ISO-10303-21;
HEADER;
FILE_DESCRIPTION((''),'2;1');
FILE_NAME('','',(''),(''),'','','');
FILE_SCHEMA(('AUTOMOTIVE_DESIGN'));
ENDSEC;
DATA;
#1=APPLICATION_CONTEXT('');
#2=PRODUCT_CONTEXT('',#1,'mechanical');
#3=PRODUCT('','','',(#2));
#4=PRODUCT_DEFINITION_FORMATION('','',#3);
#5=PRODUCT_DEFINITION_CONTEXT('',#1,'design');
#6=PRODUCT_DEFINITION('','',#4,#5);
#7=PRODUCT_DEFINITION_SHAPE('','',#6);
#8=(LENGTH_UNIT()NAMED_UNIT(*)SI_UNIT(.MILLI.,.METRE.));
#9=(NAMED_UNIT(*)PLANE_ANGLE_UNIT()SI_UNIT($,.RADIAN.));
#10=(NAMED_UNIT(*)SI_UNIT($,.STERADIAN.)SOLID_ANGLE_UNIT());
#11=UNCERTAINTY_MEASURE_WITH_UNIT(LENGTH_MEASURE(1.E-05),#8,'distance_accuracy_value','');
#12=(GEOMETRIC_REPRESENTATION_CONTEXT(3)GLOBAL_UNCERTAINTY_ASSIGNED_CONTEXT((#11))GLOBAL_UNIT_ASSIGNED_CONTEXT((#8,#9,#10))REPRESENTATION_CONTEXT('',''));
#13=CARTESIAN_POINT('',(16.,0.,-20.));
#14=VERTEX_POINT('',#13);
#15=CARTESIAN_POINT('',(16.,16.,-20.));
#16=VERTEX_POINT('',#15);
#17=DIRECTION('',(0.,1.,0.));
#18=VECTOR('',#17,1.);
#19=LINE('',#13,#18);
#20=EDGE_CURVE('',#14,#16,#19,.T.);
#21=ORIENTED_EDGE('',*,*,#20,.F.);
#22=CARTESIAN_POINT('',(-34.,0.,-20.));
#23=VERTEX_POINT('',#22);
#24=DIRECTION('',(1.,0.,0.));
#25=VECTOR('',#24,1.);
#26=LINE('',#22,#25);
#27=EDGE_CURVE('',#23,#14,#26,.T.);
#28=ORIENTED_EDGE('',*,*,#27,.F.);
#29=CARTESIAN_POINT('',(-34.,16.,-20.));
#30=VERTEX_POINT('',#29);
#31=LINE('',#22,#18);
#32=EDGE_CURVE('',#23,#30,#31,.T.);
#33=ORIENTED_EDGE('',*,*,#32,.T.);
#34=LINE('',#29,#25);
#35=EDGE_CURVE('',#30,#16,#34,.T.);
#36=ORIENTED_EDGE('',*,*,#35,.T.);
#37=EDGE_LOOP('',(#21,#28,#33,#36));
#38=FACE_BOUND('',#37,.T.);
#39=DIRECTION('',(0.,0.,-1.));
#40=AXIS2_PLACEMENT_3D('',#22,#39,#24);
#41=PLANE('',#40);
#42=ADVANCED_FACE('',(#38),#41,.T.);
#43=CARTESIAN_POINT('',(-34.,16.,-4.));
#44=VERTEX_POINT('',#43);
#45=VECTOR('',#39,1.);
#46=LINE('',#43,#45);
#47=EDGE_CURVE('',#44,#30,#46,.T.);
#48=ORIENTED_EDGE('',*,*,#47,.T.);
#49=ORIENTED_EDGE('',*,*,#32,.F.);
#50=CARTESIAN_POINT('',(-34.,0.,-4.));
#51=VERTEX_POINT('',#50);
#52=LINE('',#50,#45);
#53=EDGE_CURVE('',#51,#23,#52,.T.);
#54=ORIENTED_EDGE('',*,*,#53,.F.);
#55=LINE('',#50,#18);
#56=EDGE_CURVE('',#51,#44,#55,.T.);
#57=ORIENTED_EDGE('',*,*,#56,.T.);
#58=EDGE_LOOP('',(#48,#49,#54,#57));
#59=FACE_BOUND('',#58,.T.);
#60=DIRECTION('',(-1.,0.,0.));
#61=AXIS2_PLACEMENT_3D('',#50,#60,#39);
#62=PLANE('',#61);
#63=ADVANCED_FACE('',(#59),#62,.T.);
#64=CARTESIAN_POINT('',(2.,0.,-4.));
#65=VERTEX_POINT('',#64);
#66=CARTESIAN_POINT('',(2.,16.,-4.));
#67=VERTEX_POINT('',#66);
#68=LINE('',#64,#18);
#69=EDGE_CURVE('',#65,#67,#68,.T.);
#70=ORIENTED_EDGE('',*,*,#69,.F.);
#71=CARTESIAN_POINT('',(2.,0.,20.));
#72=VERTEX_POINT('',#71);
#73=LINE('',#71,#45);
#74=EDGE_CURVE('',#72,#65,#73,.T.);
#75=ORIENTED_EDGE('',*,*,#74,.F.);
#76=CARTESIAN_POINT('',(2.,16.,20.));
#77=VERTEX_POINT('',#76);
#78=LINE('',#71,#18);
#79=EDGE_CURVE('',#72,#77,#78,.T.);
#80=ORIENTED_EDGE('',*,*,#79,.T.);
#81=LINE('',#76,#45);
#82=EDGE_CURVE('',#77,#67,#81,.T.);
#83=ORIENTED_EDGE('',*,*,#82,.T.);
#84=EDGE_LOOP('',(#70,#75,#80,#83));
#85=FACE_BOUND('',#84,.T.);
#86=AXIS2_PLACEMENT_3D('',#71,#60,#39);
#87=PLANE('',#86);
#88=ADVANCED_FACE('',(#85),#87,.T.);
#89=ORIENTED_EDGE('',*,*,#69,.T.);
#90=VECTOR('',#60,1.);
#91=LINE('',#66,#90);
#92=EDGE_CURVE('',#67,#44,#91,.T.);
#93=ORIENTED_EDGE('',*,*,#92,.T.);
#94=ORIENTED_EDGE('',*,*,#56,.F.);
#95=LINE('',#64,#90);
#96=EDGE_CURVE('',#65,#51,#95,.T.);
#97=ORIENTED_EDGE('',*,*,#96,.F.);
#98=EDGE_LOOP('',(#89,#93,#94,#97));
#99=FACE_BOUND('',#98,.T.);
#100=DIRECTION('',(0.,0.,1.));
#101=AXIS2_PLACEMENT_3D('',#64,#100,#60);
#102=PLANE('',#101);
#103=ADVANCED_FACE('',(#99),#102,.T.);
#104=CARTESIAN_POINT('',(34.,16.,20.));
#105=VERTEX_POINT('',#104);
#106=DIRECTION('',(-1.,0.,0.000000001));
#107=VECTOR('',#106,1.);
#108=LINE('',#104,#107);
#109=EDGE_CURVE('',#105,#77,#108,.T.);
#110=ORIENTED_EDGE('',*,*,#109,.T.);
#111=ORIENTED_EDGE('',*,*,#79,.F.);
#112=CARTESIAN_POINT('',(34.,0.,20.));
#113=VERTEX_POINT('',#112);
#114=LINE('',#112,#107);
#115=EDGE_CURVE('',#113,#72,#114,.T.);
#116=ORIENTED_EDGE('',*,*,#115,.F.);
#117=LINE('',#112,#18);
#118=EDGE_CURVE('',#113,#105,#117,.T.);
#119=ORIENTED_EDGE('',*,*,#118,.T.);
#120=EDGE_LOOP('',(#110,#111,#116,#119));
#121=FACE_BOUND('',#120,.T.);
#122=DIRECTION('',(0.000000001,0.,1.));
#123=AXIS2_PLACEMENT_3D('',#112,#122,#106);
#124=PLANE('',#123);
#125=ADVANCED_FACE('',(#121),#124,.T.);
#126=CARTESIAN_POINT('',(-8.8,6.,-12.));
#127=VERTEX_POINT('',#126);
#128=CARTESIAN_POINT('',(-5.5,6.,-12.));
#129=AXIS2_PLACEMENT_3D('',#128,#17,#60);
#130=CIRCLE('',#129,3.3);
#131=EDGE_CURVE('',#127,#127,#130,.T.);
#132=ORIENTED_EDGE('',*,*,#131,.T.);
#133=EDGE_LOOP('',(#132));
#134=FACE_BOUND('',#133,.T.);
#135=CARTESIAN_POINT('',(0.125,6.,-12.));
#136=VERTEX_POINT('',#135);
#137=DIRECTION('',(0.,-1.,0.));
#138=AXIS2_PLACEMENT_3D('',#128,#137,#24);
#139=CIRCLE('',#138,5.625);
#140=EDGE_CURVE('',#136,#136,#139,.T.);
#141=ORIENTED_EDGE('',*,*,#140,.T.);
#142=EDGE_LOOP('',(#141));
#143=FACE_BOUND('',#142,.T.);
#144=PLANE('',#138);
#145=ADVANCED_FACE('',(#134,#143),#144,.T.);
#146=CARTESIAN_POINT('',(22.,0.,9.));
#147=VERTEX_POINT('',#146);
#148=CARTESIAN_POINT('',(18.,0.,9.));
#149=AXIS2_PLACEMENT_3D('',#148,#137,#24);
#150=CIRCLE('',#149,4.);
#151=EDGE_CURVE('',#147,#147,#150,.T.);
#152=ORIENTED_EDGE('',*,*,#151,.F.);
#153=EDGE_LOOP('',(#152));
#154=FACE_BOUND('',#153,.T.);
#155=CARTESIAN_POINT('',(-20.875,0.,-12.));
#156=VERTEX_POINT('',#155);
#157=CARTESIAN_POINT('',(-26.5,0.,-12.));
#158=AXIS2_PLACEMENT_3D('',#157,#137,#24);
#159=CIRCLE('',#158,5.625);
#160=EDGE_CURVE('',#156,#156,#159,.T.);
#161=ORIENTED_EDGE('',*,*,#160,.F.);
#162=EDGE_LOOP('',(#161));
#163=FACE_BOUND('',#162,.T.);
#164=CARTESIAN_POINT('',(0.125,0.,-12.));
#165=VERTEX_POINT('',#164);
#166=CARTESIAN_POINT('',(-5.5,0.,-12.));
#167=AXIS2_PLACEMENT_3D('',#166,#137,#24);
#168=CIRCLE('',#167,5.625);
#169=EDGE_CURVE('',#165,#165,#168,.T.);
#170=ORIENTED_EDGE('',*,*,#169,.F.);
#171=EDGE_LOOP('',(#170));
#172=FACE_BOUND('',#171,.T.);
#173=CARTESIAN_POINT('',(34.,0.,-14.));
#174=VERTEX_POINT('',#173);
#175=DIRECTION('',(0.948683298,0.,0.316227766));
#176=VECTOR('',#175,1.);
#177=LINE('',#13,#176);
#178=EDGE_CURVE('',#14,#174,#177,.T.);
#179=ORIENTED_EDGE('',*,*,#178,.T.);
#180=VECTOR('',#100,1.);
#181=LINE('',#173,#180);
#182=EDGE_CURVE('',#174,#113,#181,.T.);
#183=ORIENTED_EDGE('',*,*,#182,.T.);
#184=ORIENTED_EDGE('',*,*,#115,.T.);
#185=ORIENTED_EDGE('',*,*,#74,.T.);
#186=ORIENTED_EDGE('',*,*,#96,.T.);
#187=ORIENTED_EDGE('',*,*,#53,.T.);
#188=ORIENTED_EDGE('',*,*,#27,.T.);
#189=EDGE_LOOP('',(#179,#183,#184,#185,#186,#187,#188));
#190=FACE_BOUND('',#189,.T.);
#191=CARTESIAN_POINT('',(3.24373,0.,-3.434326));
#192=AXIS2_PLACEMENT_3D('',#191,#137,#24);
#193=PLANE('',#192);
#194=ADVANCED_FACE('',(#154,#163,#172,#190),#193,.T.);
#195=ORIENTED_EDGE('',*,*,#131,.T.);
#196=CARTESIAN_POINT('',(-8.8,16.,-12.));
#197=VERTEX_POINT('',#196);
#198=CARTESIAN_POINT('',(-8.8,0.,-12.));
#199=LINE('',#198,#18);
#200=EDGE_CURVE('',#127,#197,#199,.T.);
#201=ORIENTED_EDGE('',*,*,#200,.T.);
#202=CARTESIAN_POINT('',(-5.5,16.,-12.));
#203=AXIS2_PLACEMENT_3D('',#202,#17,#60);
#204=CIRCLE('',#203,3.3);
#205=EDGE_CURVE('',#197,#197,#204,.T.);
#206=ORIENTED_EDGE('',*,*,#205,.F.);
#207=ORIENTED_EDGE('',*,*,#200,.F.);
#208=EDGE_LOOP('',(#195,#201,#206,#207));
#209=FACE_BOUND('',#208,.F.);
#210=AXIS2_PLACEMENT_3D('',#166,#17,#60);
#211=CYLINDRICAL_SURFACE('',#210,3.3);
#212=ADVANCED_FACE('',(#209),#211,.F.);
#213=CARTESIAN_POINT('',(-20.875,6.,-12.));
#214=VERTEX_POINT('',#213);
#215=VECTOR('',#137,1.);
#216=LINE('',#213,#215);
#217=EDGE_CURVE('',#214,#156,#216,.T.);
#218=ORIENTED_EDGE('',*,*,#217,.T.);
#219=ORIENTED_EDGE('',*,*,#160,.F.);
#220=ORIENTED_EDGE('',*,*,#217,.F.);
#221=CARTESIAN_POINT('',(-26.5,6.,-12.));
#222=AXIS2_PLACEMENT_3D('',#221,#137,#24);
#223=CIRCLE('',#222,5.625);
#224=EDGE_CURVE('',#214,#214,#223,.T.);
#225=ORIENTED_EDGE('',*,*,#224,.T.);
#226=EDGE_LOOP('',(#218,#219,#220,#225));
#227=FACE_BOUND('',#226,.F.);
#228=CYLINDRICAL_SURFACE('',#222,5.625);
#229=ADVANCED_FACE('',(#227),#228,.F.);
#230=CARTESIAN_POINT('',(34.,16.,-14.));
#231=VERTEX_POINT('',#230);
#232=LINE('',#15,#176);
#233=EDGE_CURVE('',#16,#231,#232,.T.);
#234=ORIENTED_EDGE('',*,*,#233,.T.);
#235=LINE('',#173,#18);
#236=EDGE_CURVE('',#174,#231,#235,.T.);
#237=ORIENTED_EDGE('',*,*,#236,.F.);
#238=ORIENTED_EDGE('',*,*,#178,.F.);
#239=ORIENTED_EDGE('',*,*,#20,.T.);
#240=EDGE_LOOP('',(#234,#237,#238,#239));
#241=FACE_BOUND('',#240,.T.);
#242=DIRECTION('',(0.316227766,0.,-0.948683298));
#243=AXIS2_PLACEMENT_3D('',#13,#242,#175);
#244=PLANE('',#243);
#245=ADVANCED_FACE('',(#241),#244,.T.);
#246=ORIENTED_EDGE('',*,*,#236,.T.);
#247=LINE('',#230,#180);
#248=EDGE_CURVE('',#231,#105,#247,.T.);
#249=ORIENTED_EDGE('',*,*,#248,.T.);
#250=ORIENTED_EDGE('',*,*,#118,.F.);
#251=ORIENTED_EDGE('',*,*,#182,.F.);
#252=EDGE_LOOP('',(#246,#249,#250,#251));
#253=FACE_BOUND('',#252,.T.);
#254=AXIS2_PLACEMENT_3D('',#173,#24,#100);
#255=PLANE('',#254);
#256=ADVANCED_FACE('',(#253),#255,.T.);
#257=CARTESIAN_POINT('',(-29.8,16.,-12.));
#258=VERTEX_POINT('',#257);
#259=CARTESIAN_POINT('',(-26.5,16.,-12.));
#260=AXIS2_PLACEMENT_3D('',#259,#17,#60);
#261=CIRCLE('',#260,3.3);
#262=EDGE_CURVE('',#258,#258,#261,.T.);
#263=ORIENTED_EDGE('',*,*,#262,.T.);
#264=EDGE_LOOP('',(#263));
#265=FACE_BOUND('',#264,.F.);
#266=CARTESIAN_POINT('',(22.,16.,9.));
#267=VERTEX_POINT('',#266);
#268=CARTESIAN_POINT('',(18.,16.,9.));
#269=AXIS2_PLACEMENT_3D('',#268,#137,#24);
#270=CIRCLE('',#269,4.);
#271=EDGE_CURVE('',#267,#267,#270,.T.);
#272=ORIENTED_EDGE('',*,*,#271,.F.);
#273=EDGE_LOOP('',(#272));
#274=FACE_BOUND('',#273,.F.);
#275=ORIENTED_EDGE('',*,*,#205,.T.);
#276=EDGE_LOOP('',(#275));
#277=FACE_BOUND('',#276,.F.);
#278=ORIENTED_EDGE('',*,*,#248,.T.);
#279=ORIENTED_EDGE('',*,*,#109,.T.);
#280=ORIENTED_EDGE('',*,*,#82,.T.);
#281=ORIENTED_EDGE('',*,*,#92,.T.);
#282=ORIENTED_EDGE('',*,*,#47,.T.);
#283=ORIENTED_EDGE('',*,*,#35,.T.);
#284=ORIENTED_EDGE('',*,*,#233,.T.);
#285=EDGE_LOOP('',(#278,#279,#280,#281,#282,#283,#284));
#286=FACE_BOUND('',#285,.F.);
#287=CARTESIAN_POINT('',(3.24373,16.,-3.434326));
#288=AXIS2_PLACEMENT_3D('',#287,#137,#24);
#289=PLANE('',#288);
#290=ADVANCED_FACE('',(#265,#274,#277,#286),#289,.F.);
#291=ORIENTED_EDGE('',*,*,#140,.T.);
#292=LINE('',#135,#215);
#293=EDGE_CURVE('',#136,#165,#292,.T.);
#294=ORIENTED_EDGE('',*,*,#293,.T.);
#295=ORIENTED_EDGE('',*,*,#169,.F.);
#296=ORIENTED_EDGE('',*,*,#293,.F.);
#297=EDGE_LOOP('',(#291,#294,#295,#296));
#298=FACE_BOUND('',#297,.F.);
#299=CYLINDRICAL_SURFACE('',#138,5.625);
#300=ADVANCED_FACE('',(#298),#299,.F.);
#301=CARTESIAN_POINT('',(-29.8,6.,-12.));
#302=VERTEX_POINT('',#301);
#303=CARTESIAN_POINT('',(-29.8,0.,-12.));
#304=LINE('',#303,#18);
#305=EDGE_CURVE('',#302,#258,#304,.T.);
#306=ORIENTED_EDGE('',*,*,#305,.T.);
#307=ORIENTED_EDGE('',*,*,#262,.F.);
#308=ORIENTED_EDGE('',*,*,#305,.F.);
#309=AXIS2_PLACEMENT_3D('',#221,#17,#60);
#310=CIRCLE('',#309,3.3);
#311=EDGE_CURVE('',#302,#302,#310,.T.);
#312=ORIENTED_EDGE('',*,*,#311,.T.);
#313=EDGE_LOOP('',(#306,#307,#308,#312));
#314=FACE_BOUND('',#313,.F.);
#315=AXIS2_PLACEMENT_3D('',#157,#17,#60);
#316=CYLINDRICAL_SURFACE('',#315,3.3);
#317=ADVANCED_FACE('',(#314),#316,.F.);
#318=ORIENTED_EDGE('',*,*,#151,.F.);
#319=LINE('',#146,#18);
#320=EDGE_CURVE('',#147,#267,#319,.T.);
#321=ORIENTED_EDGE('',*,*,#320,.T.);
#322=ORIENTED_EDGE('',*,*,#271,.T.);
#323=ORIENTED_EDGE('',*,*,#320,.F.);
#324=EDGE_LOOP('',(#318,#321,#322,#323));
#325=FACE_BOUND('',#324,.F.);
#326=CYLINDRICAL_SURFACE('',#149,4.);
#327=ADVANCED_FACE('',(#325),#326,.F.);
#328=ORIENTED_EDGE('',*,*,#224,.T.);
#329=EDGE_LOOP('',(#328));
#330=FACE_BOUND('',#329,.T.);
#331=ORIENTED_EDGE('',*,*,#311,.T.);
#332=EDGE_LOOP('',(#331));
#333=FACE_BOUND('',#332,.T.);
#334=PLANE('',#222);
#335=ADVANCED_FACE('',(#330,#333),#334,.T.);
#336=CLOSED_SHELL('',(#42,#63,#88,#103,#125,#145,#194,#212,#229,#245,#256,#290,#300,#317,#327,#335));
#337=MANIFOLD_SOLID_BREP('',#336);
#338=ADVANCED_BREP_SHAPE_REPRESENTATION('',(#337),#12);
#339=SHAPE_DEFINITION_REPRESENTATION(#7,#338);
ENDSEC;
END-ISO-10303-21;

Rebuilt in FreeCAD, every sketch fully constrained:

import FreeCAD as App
import Part
import Sketcher


def add_polygon(sketch, points):
    """Adds a closed chain of lines whose ends are joined by coincident constraints."""
    first, n = sketch.GeometryCount, len(points)
    for a, b in zip(points, points[1:] + points[:1]):
        sketch.addGeometry(Part.LineSegment(App.Vector(*a, 0), App.Vector(*b, 0)), False)
    for i in range(n):
        sketch.addConstraint(Sketcher.Constraint("Coincident", first + i, 2, first + (i + 1) % n, 1))

doc = App.newDocument("Part")
body = doc.addObject("PartDesign::Body", "Body")

sketch1 = body.newObject("Sketcher::SketchObject", "Sketch")
sketch1.AttachmentSupport = (doc.getObject("XZ_Plane"), [""])
sketch1.MapMode = "FlatFace"
add_polygon(sketch1, [(34, -14), (34, 20), (2, 20), (2, -4), (-34, -4), (-34, -20), (16, -20)])
sketch1.addGeometry(Part.Circle(App.Vector(18, 9, 0), App.Vector(0, 0, 1), 4), False)
sketch1.addConstraint(Sketcher.Constraint("Vertical", 0))
sketch1.addConstraint(Sketcher.Constraint("Horizontal", 1))
sketch1.addConstraint(Sketcher.Constraint("Vertical", 2))
sketch1.addConstraint(Sketcher.Constraint("Horizontal", 3))
sketch1.addConstraint(Sketcher.Constraint("Vertical", 4))
sketch1.addConstraint(Sketcher.Constraint("Horizontal", 5))
sketch1.addConstraint(Sketcher.Constraint("Symmetric", 0, 2, 4, 2, -1, 1))
sketch1.addConstraint(Sketcher.Constraint("Diameter", 7, 8.0))
sketch1.addConstraint(Sketcher.Constraint("DistanceX", 1, 2, 1, 1, 32.0))
sketch1.addConstraint(Sketcher.Constraint("DistanceX", 3, 2, 3, 1, 36.0))
sketch1.addConstraint(Sketcher.Constraint("DistanceX", 5, 1, 5, 2, 50.0))
sketch1.addConstraint(Sketcher.Constraint("DistanceY", 0, 1, 0, 2, 34.0))
sketch1.addConstraint(Sketcher.Constraint("DistanceY", 2, 2, 2, 1, 24.0))
sketch1.addConstraint(Sketcher.Constraint("DistanceY", 4, 2, 4, 1, 16.0))
sketch1.addConstraint(Sketcher.Constraint("DistanceX", -1, 1, 7, 3, 18.0))
sketch1.addConstraint(Sketcher.Constraint("DistanceY", -1, 1, 7, 3, 9.0))
pad1 = body.newObject("PartDesign::Pad", "Pad")
pad1.Profile = sketch1
pad1.Length = 16
pad1.Reversed = True

sketch2 = body.newObject("Sketcher::SketchObject", "Sketch001")
sketch2.AttachmentSupport = (doc.getObject("XZ_Plane"), [""])
sketch2.MapMode = "FlatFace"
sketch2.addGeometry(Part.Circle(App.Vector(-26.5, -12, 0), App.Vector(0, 0, 1), 3.3), False)
sketch2.addGeometry(Part.Circle(App.Vector(-5.5, -12, 0), App.Vector(0, 0, 1), 3.3), False)
sketch2.addConstraint(Sketcher.Constraint("Equal", 0, 1))
sketch2.addConstraint(Sketcher.Constraint("Horizontal", 0, 3, 1, 3))
sketch2.addConstraint(Sketcher.Constraint("Diameter", 0, 6.6))
sketch2.addConstraint(Sketcher.Constraint("DistanceY", 0, 3, -1, 1, 12.0))
sketch2.addConstraint(Sketcher.Constraint("DistanceX", 0, 3, 1, 3, 21.0))
sketch2.addConstraint(Sketcher.Constraint("DistanceX", 0, 3, -1, 1, 26.5))
doc.recompute()
hole = body.newObject("PartDesign::Hole", "Hole")
hole.Profile = sketch2
hole.ThreadType = "None"
hole.Diameter = 6.6
hole.DepthType = "ThroughAll"
hole.HoleCutType = "Counterbore"
hole.HoleCutDiameter = 11.25
hole.HoleCutDepth = 6

doc.recompute()
